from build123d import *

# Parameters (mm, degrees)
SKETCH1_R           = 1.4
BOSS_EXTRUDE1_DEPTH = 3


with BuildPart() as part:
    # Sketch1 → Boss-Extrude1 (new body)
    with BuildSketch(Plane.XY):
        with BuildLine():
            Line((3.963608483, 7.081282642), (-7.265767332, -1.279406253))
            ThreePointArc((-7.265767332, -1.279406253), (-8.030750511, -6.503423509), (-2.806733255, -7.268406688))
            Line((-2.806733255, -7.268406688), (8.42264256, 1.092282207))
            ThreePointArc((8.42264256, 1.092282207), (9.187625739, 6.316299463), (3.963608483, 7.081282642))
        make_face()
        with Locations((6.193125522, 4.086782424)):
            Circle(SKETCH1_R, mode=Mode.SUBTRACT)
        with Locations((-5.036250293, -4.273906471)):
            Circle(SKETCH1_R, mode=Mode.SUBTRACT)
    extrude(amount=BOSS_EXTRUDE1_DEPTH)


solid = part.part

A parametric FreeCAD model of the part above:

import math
import FreeCAD as App
import Part
import Sketcher
from FreeCAD import Vector
Q = App.Units.Quantity

doc = App.newDocument("Part")
body = doc.addObject("PartDesign::Body", "Body")

sketch1 = doc.addObject("Sketcher::SketchObject", "Sketch")
body.addObject(sketch1)
sketch1.AttachmentSupport = (doc.XY_Plane, [""])
sketch1.MapMode = "FlatFace"
sketch1.addGeometry([
    Part.LineSegment(Vector(3.963608, 7.081283, 0), Vector(-7.265767, -1.279406, 0)),
    Part.ArcOfCircle(Part.Circle(Vector(-5.03625, -4.273906, 0), Vector(0, 0, 1), 3.733333), math.radians(126.669058), math.radians(306.669058)),
    Part.LineSegment(Vector(-2.806733, -7.268407, 0), Vector(8.422643, 1.092282, 0)),
    Part.ArcOfCircle(Part.Circle(Vector(6.193126, 4.086782, 0), Vector(0, 0, 1), 3.733333), math.radians(-53.330942), math.radians(126.669058)),
    Part.Circle(Vector(-5.03625, -4.273906, 0), Vector(0, 0, 1), 1.4),
    Part.Circle(Vector(6.193126, 4.086782, 0), Vector(0, 0, 1), 1.4),
], False)
sketch1.addConstraint([
    Sketcher.Constraint("Tangent", 0, 2, 1, 1),
    Sketcher.Constraint("Tangent", 1, 2, 2, 1),
    Sketcher.Constraint("Tangent", 2, 2, 3, 1),
    Sketcher.Constraint("Tangent", 3, 2, 0, 1),
    Sketcher.Constraint("Coincident", 4, 3, 1, 3),
    Sketcher.Constraint("Coincident", 5, 3, 3, 3),
    Sketcher.Constraint("Equal", 1, 3),
    Sketcher.Constraint("Equal", 4, 5),
    Sketcher.Constraint("Diameter", 4, Q("2.8 mm")),
    Sketcher.Constraint("Distance", 0, Q("14 mm")),
    Sketcher.Constraint("Radius", 1, Q("3.733333 mm")),
    Sketcher.Constraint("DistanceY", 1, 2, 0, 2, Q("5.989 mm")),
    Sketcher.Constraint("DistanceX", 1, 3, -1, 1, Q("5.03625 mm")),
    Sketcher.Constraint("DistanceY", 1, 3, -1, 1, Q("4.273906 mm")),
])
pad1 = doc.addObject("PartDesign::Pad", "Pad")
body.addObject(pad1)
pad1.Profile = sketch1
pad1.Length = 3

doc.recompute()
